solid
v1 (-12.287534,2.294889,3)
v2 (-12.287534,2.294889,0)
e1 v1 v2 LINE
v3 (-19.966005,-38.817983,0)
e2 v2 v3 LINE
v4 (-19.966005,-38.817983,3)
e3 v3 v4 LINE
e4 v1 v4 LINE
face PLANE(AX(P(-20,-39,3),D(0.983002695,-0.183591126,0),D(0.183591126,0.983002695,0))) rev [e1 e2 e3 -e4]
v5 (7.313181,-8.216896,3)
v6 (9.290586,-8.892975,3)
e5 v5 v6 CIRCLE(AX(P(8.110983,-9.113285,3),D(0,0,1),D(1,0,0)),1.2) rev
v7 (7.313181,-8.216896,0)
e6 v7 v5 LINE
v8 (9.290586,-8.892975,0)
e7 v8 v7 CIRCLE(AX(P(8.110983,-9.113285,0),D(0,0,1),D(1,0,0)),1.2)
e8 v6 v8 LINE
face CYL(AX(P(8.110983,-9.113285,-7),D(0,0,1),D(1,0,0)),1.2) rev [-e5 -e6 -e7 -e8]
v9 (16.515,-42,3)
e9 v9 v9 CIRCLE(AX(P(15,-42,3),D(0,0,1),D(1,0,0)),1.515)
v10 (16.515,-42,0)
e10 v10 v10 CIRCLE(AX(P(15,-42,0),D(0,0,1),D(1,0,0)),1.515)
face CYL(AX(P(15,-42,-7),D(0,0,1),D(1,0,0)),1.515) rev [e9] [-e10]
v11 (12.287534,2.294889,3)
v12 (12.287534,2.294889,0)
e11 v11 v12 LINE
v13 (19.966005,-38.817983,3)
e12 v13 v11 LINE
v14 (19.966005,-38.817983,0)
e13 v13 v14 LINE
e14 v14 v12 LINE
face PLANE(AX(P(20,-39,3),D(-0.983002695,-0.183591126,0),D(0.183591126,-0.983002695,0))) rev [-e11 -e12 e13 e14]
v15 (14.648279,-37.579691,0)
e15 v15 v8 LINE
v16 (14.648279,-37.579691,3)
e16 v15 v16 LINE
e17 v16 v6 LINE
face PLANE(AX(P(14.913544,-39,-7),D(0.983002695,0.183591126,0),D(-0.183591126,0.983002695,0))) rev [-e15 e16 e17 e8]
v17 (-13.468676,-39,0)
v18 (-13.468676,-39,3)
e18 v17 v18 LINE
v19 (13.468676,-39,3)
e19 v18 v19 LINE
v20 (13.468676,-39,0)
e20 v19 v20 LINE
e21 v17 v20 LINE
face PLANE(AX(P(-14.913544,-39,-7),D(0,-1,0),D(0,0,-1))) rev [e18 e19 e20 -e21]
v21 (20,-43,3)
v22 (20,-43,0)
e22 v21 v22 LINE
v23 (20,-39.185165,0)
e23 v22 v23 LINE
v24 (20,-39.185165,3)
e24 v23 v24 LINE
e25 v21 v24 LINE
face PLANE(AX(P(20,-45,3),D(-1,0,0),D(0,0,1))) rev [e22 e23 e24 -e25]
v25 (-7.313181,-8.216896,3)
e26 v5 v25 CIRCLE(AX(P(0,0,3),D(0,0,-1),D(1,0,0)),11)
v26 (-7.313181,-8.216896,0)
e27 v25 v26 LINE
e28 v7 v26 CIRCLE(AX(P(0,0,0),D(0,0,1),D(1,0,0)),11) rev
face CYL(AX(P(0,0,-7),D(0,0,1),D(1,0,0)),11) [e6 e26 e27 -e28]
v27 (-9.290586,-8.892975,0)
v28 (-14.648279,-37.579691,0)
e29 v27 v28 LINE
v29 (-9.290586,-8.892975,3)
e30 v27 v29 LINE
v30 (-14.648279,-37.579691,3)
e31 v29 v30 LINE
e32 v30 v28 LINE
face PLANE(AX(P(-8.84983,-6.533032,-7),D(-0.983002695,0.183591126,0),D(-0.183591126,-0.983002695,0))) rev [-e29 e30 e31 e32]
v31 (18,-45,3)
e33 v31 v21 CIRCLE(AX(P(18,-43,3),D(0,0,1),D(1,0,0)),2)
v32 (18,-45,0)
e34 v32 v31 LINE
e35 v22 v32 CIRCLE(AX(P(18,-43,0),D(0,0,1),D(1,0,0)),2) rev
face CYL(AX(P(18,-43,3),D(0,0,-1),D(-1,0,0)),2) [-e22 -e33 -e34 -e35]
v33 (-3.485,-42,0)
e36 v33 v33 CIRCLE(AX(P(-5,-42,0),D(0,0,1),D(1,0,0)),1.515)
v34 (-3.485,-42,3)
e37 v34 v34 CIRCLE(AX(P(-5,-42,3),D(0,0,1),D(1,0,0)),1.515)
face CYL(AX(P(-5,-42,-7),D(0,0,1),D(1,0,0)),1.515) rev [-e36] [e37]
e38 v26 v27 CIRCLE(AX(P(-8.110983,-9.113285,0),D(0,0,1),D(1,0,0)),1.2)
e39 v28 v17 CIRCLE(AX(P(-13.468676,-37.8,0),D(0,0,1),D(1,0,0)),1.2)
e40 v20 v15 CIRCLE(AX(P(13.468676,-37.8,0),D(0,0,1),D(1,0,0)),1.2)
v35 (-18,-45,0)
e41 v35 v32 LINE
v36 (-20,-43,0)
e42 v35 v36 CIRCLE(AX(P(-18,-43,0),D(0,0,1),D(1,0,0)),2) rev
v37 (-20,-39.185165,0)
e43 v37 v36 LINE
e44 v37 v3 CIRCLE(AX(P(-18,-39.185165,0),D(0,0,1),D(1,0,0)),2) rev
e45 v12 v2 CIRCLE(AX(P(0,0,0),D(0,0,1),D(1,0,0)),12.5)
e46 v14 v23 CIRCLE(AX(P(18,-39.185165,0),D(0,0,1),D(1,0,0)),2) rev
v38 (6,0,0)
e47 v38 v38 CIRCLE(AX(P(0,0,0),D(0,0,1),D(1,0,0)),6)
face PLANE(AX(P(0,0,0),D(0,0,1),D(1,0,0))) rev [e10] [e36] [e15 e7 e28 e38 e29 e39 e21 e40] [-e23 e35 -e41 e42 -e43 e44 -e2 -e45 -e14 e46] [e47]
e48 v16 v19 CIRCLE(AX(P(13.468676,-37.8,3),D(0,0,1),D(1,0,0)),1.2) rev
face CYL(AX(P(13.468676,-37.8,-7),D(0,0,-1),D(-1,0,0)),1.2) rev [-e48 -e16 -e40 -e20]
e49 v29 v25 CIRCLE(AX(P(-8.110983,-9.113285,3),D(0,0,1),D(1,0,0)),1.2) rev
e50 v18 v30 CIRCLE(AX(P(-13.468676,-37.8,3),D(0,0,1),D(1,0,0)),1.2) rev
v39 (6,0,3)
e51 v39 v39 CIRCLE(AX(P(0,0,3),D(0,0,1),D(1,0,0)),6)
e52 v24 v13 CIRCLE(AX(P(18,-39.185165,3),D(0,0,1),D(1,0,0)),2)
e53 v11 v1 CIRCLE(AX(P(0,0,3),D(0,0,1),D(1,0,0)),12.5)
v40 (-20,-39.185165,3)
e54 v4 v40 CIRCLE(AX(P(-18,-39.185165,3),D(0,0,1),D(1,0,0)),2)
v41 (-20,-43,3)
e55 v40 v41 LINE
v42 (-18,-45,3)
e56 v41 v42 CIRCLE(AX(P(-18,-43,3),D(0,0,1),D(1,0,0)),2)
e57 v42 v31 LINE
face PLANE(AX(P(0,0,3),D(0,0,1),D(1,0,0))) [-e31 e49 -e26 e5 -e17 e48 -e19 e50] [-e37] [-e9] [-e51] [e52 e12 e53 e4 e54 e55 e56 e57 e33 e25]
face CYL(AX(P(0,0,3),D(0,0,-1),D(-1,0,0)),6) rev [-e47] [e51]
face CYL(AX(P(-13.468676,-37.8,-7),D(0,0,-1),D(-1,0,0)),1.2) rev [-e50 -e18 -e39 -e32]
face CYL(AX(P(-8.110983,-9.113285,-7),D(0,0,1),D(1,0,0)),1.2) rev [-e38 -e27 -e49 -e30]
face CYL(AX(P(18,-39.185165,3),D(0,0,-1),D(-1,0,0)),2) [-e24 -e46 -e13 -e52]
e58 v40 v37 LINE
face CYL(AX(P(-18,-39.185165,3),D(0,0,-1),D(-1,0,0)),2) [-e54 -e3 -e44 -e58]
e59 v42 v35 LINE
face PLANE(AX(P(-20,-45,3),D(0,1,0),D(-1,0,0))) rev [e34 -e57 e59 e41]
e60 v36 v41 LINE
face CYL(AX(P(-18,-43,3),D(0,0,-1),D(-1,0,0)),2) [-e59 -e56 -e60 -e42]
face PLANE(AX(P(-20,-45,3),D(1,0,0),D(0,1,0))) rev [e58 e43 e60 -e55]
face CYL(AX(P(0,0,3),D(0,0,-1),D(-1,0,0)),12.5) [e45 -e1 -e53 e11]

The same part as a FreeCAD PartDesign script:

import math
import FreeCAD as App
import Part
import Sketcher

V = App.Vector


def edges_at(feature, points):
    """Names of the edges that pass closest to the given points."""
    edges = feature.Shape.Edges
    near = lambda p: min(range(len(edges)), key=lambda i: edges[i].distToShape(Part.Vertex(*p))[0])
    return sorted({f"Edge{near(p) + 1}" for p in points})

doc = App.newDocument("Part")
params = doc.addObject("Spreadsheet::Sheet", "Params")
for row, (alias, value) in enumerate([
    ("sketch1_diameter", "12 mm"),
    ("sketch1_radius", "12.5 mm"),
    ("sketch1_width", "40 mm"),
    ("sketch1_height", "6 mm"),
    ("pad1_length", "3 mm"),
    ("fillet_radius", "2 mm"),
    ("sketch2_diameter", "3.03 mm"),
    ("pocket1_length", "10 mm"),
    ("sketch3_radius", "11 mm"),
    ("pocket2_length", "10 mm"),
    ("fillet2_radius", "1.2 mm"),
], start=1):
    params.set(f"A{row}", alias)
    params.set(f"B{row}", "=" + value)
    params.setAlias(f"B{row}", alias)

body = doc.addObject("PartDesign::Body", "Body")

sketch1 = body.newObject("Sketcher::SketchObject", "Sketch")
sketch1.AttachmentSupport = (doc.getObject("XY_Plane"), [""])
sketch1.MapMode = "FlatFace"
sketch1.addGeometry(Part.LineSegment(V(-20, -45, 0), V(20, -45, 0)), False)
sketch1.addGeometry(Part.LineSegment(V(20, -45, 0), V(20, -39, 0)), False)
sketch1.addGeometry(Part.LineSegment(V(20, -39, 0), V(12, 2, 0)), False)
sketch1.addGeometry(Part.ArcOfCircle(Part.Circle(V(0, 0, 0), V(0, 0, 1), 12), math.radians(11), math.radians(169)), False)
sketch1.addGeometry(Part.LineSegment(V(-12, 2, 0), V(-20, -39, 0)), False)
sketch1.addGeometry(Part.LineSegment(V(-20, -39, 0), V(-20, -45, 0)), False)
sketch1.addGeometry(Part.Circle(V(0, 0, 0), V(0, 0, 1), 6), False)
sketch1.addConstraint(Sketcher.Constraint("Coincident", 0, 2, 1, 1))
sketch1.addConstraint(Sketcher.Constraint("Coincident", 1, 2, 2, 1))
sketch1.addConstraint(Sketcher.Constraint("Tangent", 2, 2, 3, 1))
sketch1.addConstraint(Sketcher.Constraint("Tangent", 3, 2, 4, 1))
sketch1.addConstraint(Sketcher.Constraint("Coincident", 4, 2, 5, 1))
sketch1.addConstraint(Sketcher.Constraint("Coincident", 5, 2, 0, 1))
sketch1.addConstraint(Sketcher.Constraint("Horizontal", 0))
sketch1.addConstraint(Sketcher.Constraint("Vertical", 1))
sketch1.addConstraint(Sketcher.Constraint("Vertical", 5))
sketch1.addConstraint(Sketcher.Constraint("Coincident", 3, 3, -1, 1))
sketch1.addConstraint(Sketcher.Constraint("Coincident", 6, 3, -1, 1))
sketch1.addConstraint(Sketcher.Constraint("Symmetric", 1, 2, 4, 2, -2))
sketch1.addConstraint(Sketcher.Constraint("Diameter", 6, 12.0))
sketch1.addConstraint(Sketcher.Constraint("Radius", 3, 12.5))
sketch1.addConstraint(Sketcher.Constraint("DistanceX", 0, 1, 0, 2, 40.0))
sketch1.addConstraint(Sketcher.Constraint("DistanceY", 1, 1, 1, 2, 6.0))
sketch1.addConstraint(Sketcher.Constraint("DistanceY", 0, 2, -1, 1, 45.0))
sketch1.setExpression("Constraints[12]", "Params.sketch1_diameter")
sketch1.setExpression("Constraints[13]", "Params.sketch1_radius")
sketch1.setExpression("Constraints[14]", "Params.sketch1_width")
sketch1.setExpression("Constraints[15]", "Params.sketch1_height")
pad1 = body.newObject("PartDesign::Pad", "Pad")
pad1.Profile = sketch1
pad1.setExpression("Length", "Params.pad1_length")
doc.recompute()

fillet = body.newObject("PartDesign::Fillet", "Fillet")
fillet.Base = (pad1, edges_at(pad1, [
    (20, -39, 1.5),
    (20, -45, 1.5),
    (-20, -45, 1.5),
    (-20, -39, 1.5),
]))
fillet.setExpression("Radius", "Params.fillet_radius")

sketch2 = body.newObject("Sketcher::SketchObject", "Sketch001")
sketch2.AttachmentSupport = (doc.getObject("XY_Plane"), [""])
sketch2.MapMode = "FlatFace"
sketch2.AttachmentOffset = App.Placement(V(0, 0, 3), App.Rotation())
sketch2.addGeometry(Part.Circle(V(-5, -42, 0), V(0, 0, 1), 1.5), False)
sketch2.addGeometry(Part.Circle(V(15, -42, 0), V(0, 0, 1), 1.5), False)
sketch2.addConstraint(Sketcher.Constraint("Equal", 0, 1))
sketch2.addConstraint(Sketcher.Constraint("Horizontal", 0, 3, 1, 3))
sketch2.addConstraint(Sketcher.Constraint("Diameter", 0, 3.03))
sketch2.addConstraint(Sketcher.Constraint("DistanceX", 0, 3, -1, 1, 5.0))
sketch2.addConstraint(Sketcher.Constraint("DistanceY", 0, 3, -1, 1, 42.0))
sketch2.addConstraint(Sketcher.Constraint("DistanceX", -1, 1, 1, 3, 15.0))
sketch2.setExpression("Constraints[2]", "Params.sketch2_diameter")
pocket1 = body.newObject("PartDesign::Pocket", "Pocket")
pocket1.Profile = sketch2
pocket1.setExpression("Length", "Params.pocket1_length")

sketch3 = body.newObject("Sketcher::SketchObject", "Sketch002")
sketch3.AttachmentSupport = (doc.getObject("XY_Plane"), [""])
sketch3.MapMode = "FlatFace"
sketch3.AttachmentOffset = App.Placement(V(0, 0, 3), App.Rotation())
sketch3.addGeometry(Part.LineSegment(V(-9, -7, 0), V(-15, -39, 0)), False)
sketch3.addGeometry(Part.LineSegment(V(-15, -39, 0), V(15, -39, 0)), False)
sketch3.addGeometry(Part.LineSegment(V(15, -39, 0), V(9, -7, 0)), False)
sketch3.addGeometry(Part.ArcOfCircle(Part.Circle(V(0, 0, 0), V(0, 0, 1), 11), math.radians(-144), math.radians(-36)), False)
sketch3.addConstraint(Sketcher.Constraint("Coincident", 0, 2, 1, 1))
sketch3.addConstraint(Sketcher.Constraint("Coincident", 1, 2, 2, 1))
sketch3.addConstraint(Sketcher.Constraint("Coincident", 2, 2, 3, 2))
sketch3.addConstraint(Sketcher.Constraint("Coincident", 3, 1, 0, 1))
sketch3.addConstraint(Sketcher.Constraint("Horizontal", 1))
sketch3.addConstraint(Sketcher.Constraint("Coincident", 3, 3, -1, 1))
sketch3.addConstraint(Sketcher.Constraint("Horizontal", 2, 2, 3, 1))
sketch3.addConstraint(Sketcher.Constraint("Equal", 0, 2))
sketch3.addConstraint(Sketcher.Constraint("Radius", 3, 11.0))
sketch3.addConstraint(Sketcher.Constraint("DistanceY", 0, 2, -1, 1, 39.0))
sketch3.addConstraint(Sketcher.Constraint("Distance", 0, 33.028361))
sketch3.addConstraint(Sketcher.Constraint("DistanceX", 1, 1, 1, 2, 29.827088))
sketch3.setExpression("Constraints[8]", "Params.sketch3_radius")
pocket2 = body.newObject("PartDesign::Pocket", "Pocket001")
pocket2.Profile = sketch3
pocket2.setExpression("Length", "Params.pocket2_length")
doc.recompute()

fillet2 = body.newObject("PartDesign::Fillet", "Fillet001")
fillet2.Base = (pocket2, edges_at(pocket2, [
    (-8.85, -6.533, 1.5),
    (8.85, -6.533, 1.5),
    (14.914, -39, 1.5),
    (-14.914, -39, 1.5),
]))
fillet2.setExpression("Radius", "Params.fillet2_radius")

doc.recompute()
